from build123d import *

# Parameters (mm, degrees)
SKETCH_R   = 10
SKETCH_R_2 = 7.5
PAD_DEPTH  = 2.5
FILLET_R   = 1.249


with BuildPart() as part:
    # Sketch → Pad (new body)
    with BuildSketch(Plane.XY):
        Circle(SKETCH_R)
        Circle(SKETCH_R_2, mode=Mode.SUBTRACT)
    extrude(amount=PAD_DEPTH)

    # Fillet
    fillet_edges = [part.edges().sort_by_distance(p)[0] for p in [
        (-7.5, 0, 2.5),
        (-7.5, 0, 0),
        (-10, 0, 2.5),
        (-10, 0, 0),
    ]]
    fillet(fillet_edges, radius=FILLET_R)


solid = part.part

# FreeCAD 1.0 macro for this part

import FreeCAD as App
import Part
import Sketcher
Q = App.Units.Quantity


def edges_at(feature, points):
    """Names of the edges that pass closest to the given points."""
    edges = feature.Shape.Edges
    near = lambda p: min(range(len(edges)), key=lambda i: edges[i].distToShape(Part.Vertex(*p))[0])
    return sorted({f"Edge{near(p) + 1}" for p in points})

doc = App.newDocument("Part")
params = doc.addObject("Spreadsheet::Sheet", "Params")
for row, (alias, value) in enumerate([
    ("sketch1_diameter", "20 mm"),
    ("sketch1_diameter2", "15 mm"),
    ("pad1_length", "2.5 mm"),
    ("fillet_radius", "1.249 mm"),
], start=1):
    params.set(f"A{row}", alias)
    params.set(f"B{row}", "=" + value)
    params.setAlias(f"B{row}", alias)

body = doc.addObject("PartDesign::Body", "Body")

sketch1 = body.newObject("Sketcher::SketchObject", "Sketch")
sketch1.AttachmentSupport = (doc.getObject("XY_Plane"), [""])
sketch1.MapMode = "FlatFace"
sketch1.addGeometry([
    Part.Circle(App.Vector(0, 0, 0), App.Vector(0, 0, 1), 10),
    Part.Circle(App.Vector(0, 0, 0), App.Vector(0, 0, 1), 8),
], False)
sketch1.addConstraint([
    Sketcher.Constraint("Coincident", 0, 3, -1, 1),
    Sketcher.Constraint("Coincident", 1, 3, -1, 1),
    Sketcher.Constraint("Diameter", 0, Q("20 mm")),
    Sketcher.Constraint("Diameter", 1, Q("15 mm")),
])
sketch1.setExpression("Constraints[2]", "Params.sketch1_diameter")
sketch1.setExpression("Constraints[3]", "Params.sketch1_diameter2")
pad1 = body.newObject("PartDesign::Pad", "Pad")
pad1.Profile = sketch1
pad1.setExpression("Length", "Params.pad1_length")
doc.recompute()

fillet = body.newObject("PartDesign::Fillet", "Fillet")
fillet.Base = (pad1, edges_at(pad1, [
    (-7.5, 0, 2.5),
    (-7.5, 0, 0),
    (-10, 0, 2.5),
    (-10, 0, 0),
]))
fillet.setExpression("Radius", "Params.fillet_radius")

doc.recompute()
